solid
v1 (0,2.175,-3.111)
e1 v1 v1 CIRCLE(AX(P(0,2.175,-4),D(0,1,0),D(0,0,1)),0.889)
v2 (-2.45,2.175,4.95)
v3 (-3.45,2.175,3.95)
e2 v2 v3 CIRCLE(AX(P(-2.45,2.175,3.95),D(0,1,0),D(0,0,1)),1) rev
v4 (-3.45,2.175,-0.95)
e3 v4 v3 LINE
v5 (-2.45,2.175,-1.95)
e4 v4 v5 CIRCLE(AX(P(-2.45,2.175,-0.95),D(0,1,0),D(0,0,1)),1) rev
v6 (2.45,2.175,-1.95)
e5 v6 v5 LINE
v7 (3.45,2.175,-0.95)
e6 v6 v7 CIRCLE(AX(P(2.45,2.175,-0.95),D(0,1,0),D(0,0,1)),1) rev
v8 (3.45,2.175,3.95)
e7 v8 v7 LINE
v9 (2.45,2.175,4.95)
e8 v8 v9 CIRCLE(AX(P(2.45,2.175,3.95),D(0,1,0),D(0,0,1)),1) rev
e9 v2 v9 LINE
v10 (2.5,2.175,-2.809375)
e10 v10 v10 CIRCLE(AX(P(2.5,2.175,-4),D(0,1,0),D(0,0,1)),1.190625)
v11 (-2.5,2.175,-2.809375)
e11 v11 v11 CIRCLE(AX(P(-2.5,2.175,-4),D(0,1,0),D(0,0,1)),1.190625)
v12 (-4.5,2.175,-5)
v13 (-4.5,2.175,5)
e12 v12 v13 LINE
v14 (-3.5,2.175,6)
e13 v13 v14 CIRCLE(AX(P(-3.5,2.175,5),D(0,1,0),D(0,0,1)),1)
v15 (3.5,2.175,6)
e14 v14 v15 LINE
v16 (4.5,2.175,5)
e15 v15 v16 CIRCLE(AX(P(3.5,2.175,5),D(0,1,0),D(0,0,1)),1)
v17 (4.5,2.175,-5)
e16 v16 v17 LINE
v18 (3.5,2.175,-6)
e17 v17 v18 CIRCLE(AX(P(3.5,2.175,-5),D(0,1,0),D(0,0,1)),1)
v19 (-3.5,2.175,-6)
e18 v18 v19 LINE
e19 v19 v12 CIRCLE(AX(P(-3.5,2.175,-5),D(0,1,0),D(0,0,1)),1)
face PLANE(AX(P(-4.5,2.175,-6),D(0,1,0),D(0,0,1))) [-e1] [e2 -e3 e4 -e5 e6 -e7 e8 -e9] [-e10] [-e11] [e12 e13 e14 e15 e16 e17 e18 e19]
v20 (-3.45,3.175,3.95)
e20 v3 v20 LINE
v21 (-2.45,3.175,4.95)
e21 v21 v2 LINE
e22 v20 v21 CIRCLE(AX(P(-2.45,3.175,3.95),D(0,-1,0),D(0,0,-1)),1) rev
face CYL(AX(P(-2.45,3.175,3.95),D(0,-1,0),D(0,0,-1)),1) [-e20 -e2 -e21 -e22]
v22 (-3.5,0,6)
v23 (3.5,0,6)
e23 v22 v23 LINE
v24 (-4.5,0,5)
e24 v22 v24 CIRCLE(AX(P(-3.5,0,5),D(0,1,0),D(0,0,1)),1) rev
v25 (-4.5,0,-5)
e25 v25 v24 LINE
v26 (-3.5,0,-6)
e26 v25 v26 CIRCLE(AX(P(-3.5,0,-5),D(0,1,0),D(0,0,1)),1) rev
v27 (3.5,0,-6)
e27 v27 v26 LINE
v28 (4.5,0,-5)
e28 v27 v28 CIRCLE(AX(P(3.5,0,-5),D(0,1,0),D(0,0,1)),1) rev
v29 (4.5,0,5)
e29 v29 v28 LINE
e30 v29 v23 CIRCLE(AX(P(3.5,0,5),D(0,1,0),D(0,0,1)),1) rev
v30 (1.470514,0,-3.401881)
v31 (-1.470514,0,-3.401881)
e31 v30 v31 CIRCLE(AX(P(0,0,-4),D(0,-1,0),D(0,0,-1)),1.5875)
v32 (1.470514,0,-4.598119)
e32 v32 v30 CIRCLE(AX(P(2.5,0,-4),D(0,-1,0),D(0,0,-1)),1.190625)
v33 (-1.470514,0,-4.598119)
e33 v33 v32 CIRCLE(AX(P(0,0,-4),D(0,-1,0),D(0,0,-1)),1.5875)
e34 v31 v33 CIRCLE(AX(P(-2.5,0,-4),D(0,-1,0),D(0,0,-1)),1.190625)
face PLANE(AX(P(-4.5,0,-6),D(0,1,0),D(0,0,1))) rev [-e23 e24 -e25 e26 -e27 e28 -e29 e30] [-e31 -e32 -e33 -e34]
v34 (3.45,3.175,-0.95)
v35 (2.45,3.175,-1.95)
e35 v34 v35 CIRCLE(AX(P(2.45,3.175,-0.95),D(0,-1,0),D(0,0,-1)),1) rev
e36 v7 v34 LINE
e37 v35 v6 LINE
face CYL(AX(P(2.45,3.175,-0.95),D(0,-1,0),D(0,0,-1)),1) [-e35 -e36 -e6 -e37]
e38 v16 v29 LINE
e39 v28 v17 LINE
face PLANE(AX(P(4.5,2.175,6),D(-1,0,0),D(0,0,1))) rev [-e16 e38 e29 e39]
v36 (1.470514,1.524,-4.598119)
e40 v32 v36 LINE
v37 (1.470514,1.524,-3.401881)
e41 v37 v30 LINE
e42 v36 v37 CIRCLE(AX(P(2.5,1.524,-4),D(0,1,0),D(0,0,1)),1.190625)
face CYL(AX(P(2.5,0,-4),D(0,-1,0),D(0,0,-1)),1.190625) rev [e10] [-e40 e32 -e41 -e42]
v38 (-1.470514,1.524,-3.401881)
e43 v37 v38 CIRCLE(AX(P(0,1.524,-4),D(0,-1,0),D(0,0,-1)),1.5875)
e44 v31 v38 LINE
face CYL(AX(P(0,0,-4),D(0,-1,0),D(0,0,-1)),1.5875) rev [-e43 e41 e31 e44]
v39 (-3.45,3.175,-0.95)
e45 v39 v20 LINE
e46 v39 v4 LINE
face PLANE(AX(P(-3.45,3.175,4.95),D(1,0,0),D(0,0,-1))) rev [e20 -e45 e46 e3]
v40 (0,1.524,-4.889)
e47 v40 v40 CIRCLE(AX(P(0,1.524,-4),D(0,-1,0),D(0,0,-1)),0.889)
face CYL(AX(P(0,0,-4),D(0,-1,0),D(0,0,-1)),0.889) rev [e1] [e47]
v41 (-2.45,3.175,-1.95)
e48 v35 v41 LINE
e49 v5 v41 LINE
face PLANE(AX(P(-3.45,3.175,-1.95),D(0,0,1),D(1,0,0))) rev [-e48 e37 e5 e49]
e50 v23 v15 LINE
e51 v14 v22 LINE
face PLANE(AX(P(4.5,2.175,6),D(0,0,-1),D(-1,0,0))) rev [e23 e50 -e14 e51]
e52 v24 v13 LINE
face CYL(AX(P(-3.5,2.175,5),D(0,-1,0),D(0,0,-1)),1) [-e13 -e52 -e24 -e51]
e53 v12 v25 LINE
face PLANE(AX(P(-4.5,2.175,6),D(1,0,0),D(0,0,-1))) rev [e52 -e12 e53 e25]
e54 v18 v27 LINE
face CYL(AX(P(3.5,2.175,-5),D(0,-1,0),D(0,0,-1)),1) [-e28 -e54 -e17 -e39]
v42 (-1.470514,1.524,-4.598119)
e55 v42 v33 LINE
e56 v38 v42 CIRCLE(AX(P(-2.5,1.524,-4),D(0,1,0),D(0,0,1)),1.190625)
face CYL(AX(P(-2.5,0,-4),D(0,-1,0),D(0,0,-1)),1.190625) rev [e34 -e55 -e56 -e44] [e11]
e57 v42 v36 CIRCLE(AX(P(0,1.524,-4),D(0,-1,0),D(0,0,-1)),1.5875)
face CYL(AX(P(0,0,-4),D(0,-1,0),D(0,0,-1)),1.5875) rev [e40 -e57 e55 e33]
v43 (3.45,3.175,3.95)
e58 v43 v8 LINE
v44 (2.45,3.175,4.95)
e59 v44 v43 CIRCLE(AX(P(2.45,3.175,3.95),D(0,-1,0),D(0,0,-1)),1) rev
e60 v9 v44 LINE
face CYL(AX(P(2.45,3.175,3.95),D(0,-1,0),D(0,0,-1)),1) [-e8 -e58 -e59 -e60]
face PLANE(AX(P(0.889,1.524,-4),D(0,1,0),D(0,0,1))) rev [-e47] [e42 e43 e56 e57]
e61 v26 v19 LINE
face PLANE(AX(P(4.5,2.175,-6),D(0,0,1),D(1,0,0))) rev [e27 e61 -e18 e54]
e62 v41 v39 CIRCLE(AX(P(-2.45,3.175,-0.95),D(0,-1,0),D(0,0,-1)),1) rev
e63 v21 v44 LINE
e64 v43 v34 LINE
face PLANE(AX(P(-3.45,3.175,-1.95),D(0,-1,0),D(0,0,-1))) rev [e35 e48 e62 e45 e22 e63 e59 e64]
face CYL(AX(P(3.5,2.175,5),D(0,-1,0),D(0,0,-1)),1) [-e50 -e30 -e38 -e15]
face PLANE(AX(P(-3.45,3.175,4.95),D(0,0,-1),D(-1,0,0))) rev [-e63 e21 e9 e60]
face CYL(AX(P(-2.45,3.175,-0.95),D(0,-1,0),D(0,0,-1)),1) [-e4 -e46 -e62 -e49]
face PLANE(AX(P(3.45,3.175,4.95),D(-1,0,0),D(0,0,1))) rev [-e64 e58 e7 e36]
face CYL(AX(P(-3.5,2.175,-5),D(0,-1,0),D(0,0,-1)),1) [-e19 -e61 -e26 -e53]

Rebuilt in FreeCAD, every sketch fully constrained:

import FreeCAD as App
import Part
import Sketcher

V = App.Vector
Q = App.Units.Quantity


def edges_at(feature, points):
    """Names of the edges that pass closest to the given points."""
    edges = feature.Shape.Edges
    near = lambda p: min(range(len(edges)), key=lambda i: edges[i].distToShape(Part.Vertex(*p))[0])
    return sorted({f"Edge{near(p) + 1}" for p in points})

doc = App.newDocument("Part")
body = doc.addObject("PartDesign::Body", "Body")

# Sketch on XZ plane
sketch1 = doc.addObject("Sketcher::SketchObject", "Sketch")
body.addObject(sketch1)
sketch1.AttachmentSupport = (doc.XZ_Plane, [""])
sketch1.MapMode = "FlatFace"
sketch1.addGeometry(Part.LineSegment(V(-4, -6, 0), V(-4, 6, 0)), False)
sketch1.addGeometry(Part.LineSegment(V(-4, 6, 0), V(4, 6, 0)), False)
sketch1.addGeometry(Part.LineSegment(V(4, 6, 0), V(4, -6, 0)), False)
sketch1.addGeometry(Part.LineSegment(V(4, -6, 0), V(-4, -6, 0)), False)
sketch1.addConstraint(Sketcher.Constraint("Coincident", 0, 2, 1, 1))
sketch1.addConstraint(Sketcher.Constraint("Coincident", 1, 2, 2, 1))
sketch1.addConstraint(Sketcher.Constraint("Coincident", 2, 2, 3, 1))
sketch1.addConstraint(Sketcher.Constraint("Coincident", 3, 2, 0, 1))
sketch1.addConstraint(Sketcher.Constraint("Vertical", 0))
sketch1.addConstraint(Sketcher.Constraint("Horizontal", 1))
sketch1.addConstraint(Sketcher.Constraint("Vertical", 2))
sketch1.addConstraint(Sketcher.Constraint("Horizontal", 3))
sketch1.addConstraint(Sketcher.Constraint("Symmetric", 0, 2, 2, 2, -1, 1))
sketch1.addConstraint(Sketcher.Constraint("DistanceX", 1, 1, 1, 2, Q("9 mm")))
sketch1.addConstraint(Sketcher.Constraint("DistanceY", 0, 1, 0, 2, Q("12 mm")))
pad1 = doc.addObject("PartDesign::Pad", "Pad")
body.addObject(pad1)
pad1.Profile = sketch1
pad1.Length = 2.175
pad1.Reversed = True

# Sketch on XZ plane
sketch2 = doc.addObject("Sketcher::SketchObject", "Sketch001")
body.addObject(sketch2)
sketch2.AttachmentSupport = (doc.XZ_Plane, [""])
sketch2.MapMode = "FlatFace"
sketch2.AttachmentOffset = App.Placement(V(0, 0, -2.175), App.Rotation())
sketch2.addGeometry(Part.LineSegment(V(-3, -2, 0), V(-3, 5, 0)), False)
sketch2.addGeometry(Part.LineSegment(V(-3, 5, 0), V(3, 5, 0)), False)
sketch2.addGeometry(Part.LineSegment(V(3, 5, 0), V(3, -2, 0)), False)
sketch2.addGeometry(Part.LineSegment(V(3, -2, 0), V(-3, -2, 0)), False)
sketch2.addConstraint(Sketcher.Constraint("Coincident", 0, 2, 1, 1))
sketch2.addConstraint(Sketcher.Constraint("Coincident", 1, 2, 2, 1))
sketch2.addConstraint(Sketcher.Constraint("Coincident", 2, 2, 3, 1))
sketch2.addConstraint(Sketcher.Constraint("Coincident", 3, 2, 0, 1))
sketch2.addConstraint(Sketcher.Constraint("Vertical", 0))
sketch2.addConstraint(Sketcher.Constraint("Horizontal", 1))
sketch2.addConstraint(Sketcher.Constraint("Vertical", 2))
sketch2.addConstraint(Sketcher.Constraint("Horizontal", 3))
sketch2.addConstraint(Sketcher.Constraint("Equal", 3, 0))
sketch2.addConstraint(Sketcher.Constraint("DistanceX", 1, 1, 1, 2, Q("6.9 mm")))
sketch2.addConstraint(Sketcher.Constraint("DistanceX", 0, 2, -1, 1, Q("3.45 mm")))
sketch2.addConstraint(Sketcher.Constraint("DistanceY", -1, 1, 0, 2, Q("4.95 mm")))
pad2 = doc.addObject("PartDesign::Pad", "Pad001")
body.addObject(pad2)
pad2.Profile = sketch2
pad2.Length = 1
pad2.Reversed = True

# Sketch on XZ plane
sketch3 = doc.addObject("Sketcher::SketchObject", "Sketch002")
body.addObject(sketch3)
sketch3.AttachmentSupport = (doc.XZ_Plane, [""])
sketch3.MapMode = "FlatFace"
sketch3.addGeometry(Part.Circle(V(0, -4, 0), V(0, 0, 1), 0.9), False)
sketch3.addConstraint(Sketcher.Constraint("PointOnObject", 0, 3, -2))
sketch3.addConstraint(Sketcher.Constraint("Diameter", 0, Q("1.778 mm")))
sketch3.addConstraint(Sketcher.Constraint("DistanceY", 0, 3, -1, 1, Q("4 mm")))
doc.recompute()
hole = doc.addObject("PartDesign::Hole", "Hole")
body.addObject(hole)
hole.Profile = sketch3
hole.ThreadType = "None"
hole.Diameter = 1.778
hole.DepthType = "ThroughAll"
hole.HoleCutType = "Counterbore"
hole.HoleCutDiameter = 3.175
hole.HoleCutDepth = 1.524

# Sketch on XZ plane
sketch4 = doc.addObject("Sketcher::SketchObject", "Sketch003")
body.addObject(sketch4)
sketch4.AttachmentSupport = (doc.XZ_Plane, [""])
sketch4.MapMode = "FlatFace"
sketch4.addGeometry(Part.Circle(V(-2.5, -4, 0), V(0, 0, 1), 1.2), False)
sketch4.addGeometry(Part.Circle(V(2.5, -4, 0), V(0, 0, 1), 1.2), False)
sketch4.addConstraint(Sketcher.Constraint("Equal", 0, 1))
sketch4.addConstraint(Sketcher.Constraint("Symmetric", 0, 3, 1, 3, -2))
sketch4.addConstraint(Sketcher.Constraint("DistanceY", 0, 3, -1, 1, Q("4 mm")))
sketch4.addConstraint(Sketcher.Constraint("DistanceX", 0, 3, 1, 3, Q("5 mm")))
sketch4.addConstraint(Sketcher.Constraint("Diameter", 0, Q("2.38125 mm")))
doc.recompute()
hole2 = doc.addObject("PartDesign::Hole", "Hole001")
body.addObject(hole2)
hole2.Profile = sketch4
hole2.ThreadType = "None"
hole2.Diameter = 2.38125
hole2.DepthType = "Dimension"
hole2.Depth = 10
hole2.DrillPoint = "Angled"
hole2.DrillPointAngle = 118
doc.recompute()

fillet = doc.addObject("PartDesign::Fillet", "Fillet")
body.addObject(fillet)
fillet.Base = (hole2, edges_at(hole2, [
    (-3.45, 2.675, -1.95),
    (-3.45, 2.675, 4.95),
    (3.45, 2.675, 4.95),
    (3.45, 2.675, -1.95),
    (-4.5, 1.087, -6),
    (4.5, 1.087, -6),
    (4.5, 1.087, 6),
    (-4.5, 1.087, 6),
]))
fillet.Radius = 1

doc.recompute()
